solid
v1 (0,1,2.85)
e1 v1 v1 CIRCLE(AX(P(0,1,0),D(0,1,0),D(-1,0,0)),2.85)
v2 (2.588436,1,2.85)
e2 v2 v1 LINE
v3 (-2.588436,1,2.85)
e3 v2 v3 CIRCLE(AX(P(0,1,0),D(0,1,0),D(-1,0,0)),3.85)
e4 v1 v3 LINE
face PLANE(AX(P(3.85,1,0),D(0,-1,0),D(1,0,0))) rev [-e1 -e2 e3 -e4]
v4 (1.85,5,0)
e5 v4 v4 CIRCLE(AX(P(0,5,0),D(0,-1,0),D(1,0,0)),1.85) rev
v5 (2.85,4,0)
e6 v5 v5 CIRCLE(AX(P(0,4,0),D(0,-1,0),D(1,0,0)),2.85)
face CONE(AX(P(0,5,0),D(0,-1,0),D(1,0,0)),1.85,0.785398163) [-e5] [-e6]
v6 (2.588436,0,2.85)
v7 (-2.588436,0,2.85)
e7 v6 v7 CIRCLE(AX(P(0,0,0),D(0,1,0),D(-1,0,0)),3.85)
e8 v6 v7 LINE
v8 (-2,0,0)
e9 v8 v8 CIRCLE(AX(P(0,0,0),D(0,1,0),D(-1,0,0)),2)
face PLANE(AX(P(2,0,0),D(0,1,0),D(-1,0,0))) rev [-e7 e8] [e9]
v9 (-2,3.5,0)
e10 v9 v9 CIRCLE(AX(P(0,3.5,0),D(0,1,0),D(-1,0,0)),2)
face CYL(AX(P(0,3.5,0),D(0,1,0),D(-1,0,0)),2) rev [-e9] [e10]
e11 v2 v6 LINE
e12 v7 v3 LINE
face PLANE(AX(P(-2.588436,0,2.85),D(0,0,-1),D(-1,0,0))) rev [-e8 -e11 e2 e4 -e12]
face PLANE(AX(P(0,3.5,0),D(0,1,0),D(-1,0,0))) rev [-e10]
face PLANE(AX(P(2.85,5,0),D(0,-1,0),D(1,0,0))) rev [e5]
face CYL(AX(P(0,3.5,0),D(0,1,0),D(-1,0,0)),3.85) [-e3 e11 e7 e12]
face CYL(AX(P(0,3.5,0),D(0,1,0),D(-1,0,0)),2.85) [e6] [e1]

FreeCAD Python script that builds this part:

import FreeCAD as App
import Part
import Sketcher


def edges_at(feature, points):
    """Names of the edges that pass closest to the given points."""
    edges = feature.Shape.Edges
    near = lambda p: min(range(len(edges)), key=lambda i: edges[i].distToShape(Part.Vertex(*p))[0])
    return sorted({f"Edge{near(p) + 1}" for p in points})


def add_polygon(sketch, points):
    """Adds a closed chain of lines whose ends are joined by coincident constraints."""
    first, n = sketch.GeometryCount, len(points)
    for a, b in zip(points, points[1:] + points[:1]):
        sketch.addGeometry(Part.LineSegment(App.Vector(*a, 0), App.Vector(*b, 0)), False)
    for i in range(n):
        sketch.addConstraint(Sketcher.Constraint("Coincident", first + i, 2, first + (i + 1) % n, 1))

doc = App.newDocument("Part")
body = doc.addObject("PartDesign::Body", "Body")

# Sketch on XY plane
sketch1 = body.newObject("Sketcher::SketchObject", "Sketch")
sketch1.AttachmentSupport = (doc.getObject("XY_Plane"), [""])
sketch1.MapMode = "FlatFace"
add_polygon(sketch1, [(0, 3.5), (2, 3.5), (2, 0), (3.9, 0), (3.9, 1), (2.9, 1), (2.9, 5), (0, 5)])  # lines 0-7
sketch1.addConstraint([
    Sketcher.Constraint("Horizontal", 0),
    Sketcher.Constraint("Vertical", 1),
    Sketcher.Constraint("Horizontal", 2),
    Sketcher.Constraint("Vertical", 3),
    Sketcher.Constraint("Horizontal", 4),
    Sketcher.Constraint("Vertical", 5),
    Sketcher.Constraint("Horizontal", 6),
    Sketcher.Constraint("Vertical", 7),
    Sketcher.Constraint("PointOnObject", 1, 2, -1),
    Sketcher.Constraint("PointOnObject", 6, 2, -2),
    Sketcher.Constraint("Equal", 4, 3),
    Sketcher.Constraint("DistanceX", 0, 1, 0, 2, 2.0),
    Sketcher.Constraint("DistanceX", 4, 2, 4, 1, 1.0),
    Sketcher.Constraint("DistanceY", 5, 1, 5, 2, 4.0),
    Sketcher.Constraint("DistanceY", 1, 2, 1, 1, 3.5),
    Sketcher.Constraint("DistanceX", 2, 1, 2, 2, 1.85),
])
revolution = body.newObject("PartDesign::Revolution", "Revolution")
revolution.Profile = sketch1
revolution.ReferenceAxis = (sketch1, ["V_Axis"])
revolution.Angle = 360
doc.recompute()

chamfer = body.newObject("PartDesign::Chamfer", "Chamfer")
chamfer.Base = (revolution, edges_at(revolution, [(-2.85, 5, 0)]))
chamfer.Size = 1

# Sketch on XZ plane
sketch2 = body.newObject("Sketcher::SketchObject", "Sketch001")
sketch2.AttachmentSupport = (doc.getObject("XZ_Plane"), [""])
sketch2.MapMode = "FlatFace"
sketch2.AttachmentOffset = App.Placement(App.Vector(0, 0, -1), App.Rotation())
add_polygon(sketch2, [(-2.6, 2.9), (-2.6, 4.6), (6, 4.6), (6, 2.9)])  # lines 0-3
sketch2.addConstraint([
    Sketcher.Constraint("Vertical", 0),
    Sketcher.Constraint("Horizontal", 1),
    Sketcher.Constraint("Vertical", 2),
    Sketcher.Constraint("Horizontal", 3),
    Sketcher.Constraint("DistanceY", -1, 1, 2, 2, 2.85),
    Sketcher.Constraint("DistanceY", 0, 1, 0, 2, 1.786619),
    Sketcher.Constraint("DistanceX", 1, 1, 1, 2, 8.626606),
    Sketcher.Constraint("DistanceX", -1, 1, 1, 2, 6.03817),
])
pocket1 = body.newObject("PartDesign::Pocket", "Pocket")
pocket1.Profile = sketch2
pocket1.Type = "ThroughAll"
pocket1.Reversed = True

doc.recompute()
